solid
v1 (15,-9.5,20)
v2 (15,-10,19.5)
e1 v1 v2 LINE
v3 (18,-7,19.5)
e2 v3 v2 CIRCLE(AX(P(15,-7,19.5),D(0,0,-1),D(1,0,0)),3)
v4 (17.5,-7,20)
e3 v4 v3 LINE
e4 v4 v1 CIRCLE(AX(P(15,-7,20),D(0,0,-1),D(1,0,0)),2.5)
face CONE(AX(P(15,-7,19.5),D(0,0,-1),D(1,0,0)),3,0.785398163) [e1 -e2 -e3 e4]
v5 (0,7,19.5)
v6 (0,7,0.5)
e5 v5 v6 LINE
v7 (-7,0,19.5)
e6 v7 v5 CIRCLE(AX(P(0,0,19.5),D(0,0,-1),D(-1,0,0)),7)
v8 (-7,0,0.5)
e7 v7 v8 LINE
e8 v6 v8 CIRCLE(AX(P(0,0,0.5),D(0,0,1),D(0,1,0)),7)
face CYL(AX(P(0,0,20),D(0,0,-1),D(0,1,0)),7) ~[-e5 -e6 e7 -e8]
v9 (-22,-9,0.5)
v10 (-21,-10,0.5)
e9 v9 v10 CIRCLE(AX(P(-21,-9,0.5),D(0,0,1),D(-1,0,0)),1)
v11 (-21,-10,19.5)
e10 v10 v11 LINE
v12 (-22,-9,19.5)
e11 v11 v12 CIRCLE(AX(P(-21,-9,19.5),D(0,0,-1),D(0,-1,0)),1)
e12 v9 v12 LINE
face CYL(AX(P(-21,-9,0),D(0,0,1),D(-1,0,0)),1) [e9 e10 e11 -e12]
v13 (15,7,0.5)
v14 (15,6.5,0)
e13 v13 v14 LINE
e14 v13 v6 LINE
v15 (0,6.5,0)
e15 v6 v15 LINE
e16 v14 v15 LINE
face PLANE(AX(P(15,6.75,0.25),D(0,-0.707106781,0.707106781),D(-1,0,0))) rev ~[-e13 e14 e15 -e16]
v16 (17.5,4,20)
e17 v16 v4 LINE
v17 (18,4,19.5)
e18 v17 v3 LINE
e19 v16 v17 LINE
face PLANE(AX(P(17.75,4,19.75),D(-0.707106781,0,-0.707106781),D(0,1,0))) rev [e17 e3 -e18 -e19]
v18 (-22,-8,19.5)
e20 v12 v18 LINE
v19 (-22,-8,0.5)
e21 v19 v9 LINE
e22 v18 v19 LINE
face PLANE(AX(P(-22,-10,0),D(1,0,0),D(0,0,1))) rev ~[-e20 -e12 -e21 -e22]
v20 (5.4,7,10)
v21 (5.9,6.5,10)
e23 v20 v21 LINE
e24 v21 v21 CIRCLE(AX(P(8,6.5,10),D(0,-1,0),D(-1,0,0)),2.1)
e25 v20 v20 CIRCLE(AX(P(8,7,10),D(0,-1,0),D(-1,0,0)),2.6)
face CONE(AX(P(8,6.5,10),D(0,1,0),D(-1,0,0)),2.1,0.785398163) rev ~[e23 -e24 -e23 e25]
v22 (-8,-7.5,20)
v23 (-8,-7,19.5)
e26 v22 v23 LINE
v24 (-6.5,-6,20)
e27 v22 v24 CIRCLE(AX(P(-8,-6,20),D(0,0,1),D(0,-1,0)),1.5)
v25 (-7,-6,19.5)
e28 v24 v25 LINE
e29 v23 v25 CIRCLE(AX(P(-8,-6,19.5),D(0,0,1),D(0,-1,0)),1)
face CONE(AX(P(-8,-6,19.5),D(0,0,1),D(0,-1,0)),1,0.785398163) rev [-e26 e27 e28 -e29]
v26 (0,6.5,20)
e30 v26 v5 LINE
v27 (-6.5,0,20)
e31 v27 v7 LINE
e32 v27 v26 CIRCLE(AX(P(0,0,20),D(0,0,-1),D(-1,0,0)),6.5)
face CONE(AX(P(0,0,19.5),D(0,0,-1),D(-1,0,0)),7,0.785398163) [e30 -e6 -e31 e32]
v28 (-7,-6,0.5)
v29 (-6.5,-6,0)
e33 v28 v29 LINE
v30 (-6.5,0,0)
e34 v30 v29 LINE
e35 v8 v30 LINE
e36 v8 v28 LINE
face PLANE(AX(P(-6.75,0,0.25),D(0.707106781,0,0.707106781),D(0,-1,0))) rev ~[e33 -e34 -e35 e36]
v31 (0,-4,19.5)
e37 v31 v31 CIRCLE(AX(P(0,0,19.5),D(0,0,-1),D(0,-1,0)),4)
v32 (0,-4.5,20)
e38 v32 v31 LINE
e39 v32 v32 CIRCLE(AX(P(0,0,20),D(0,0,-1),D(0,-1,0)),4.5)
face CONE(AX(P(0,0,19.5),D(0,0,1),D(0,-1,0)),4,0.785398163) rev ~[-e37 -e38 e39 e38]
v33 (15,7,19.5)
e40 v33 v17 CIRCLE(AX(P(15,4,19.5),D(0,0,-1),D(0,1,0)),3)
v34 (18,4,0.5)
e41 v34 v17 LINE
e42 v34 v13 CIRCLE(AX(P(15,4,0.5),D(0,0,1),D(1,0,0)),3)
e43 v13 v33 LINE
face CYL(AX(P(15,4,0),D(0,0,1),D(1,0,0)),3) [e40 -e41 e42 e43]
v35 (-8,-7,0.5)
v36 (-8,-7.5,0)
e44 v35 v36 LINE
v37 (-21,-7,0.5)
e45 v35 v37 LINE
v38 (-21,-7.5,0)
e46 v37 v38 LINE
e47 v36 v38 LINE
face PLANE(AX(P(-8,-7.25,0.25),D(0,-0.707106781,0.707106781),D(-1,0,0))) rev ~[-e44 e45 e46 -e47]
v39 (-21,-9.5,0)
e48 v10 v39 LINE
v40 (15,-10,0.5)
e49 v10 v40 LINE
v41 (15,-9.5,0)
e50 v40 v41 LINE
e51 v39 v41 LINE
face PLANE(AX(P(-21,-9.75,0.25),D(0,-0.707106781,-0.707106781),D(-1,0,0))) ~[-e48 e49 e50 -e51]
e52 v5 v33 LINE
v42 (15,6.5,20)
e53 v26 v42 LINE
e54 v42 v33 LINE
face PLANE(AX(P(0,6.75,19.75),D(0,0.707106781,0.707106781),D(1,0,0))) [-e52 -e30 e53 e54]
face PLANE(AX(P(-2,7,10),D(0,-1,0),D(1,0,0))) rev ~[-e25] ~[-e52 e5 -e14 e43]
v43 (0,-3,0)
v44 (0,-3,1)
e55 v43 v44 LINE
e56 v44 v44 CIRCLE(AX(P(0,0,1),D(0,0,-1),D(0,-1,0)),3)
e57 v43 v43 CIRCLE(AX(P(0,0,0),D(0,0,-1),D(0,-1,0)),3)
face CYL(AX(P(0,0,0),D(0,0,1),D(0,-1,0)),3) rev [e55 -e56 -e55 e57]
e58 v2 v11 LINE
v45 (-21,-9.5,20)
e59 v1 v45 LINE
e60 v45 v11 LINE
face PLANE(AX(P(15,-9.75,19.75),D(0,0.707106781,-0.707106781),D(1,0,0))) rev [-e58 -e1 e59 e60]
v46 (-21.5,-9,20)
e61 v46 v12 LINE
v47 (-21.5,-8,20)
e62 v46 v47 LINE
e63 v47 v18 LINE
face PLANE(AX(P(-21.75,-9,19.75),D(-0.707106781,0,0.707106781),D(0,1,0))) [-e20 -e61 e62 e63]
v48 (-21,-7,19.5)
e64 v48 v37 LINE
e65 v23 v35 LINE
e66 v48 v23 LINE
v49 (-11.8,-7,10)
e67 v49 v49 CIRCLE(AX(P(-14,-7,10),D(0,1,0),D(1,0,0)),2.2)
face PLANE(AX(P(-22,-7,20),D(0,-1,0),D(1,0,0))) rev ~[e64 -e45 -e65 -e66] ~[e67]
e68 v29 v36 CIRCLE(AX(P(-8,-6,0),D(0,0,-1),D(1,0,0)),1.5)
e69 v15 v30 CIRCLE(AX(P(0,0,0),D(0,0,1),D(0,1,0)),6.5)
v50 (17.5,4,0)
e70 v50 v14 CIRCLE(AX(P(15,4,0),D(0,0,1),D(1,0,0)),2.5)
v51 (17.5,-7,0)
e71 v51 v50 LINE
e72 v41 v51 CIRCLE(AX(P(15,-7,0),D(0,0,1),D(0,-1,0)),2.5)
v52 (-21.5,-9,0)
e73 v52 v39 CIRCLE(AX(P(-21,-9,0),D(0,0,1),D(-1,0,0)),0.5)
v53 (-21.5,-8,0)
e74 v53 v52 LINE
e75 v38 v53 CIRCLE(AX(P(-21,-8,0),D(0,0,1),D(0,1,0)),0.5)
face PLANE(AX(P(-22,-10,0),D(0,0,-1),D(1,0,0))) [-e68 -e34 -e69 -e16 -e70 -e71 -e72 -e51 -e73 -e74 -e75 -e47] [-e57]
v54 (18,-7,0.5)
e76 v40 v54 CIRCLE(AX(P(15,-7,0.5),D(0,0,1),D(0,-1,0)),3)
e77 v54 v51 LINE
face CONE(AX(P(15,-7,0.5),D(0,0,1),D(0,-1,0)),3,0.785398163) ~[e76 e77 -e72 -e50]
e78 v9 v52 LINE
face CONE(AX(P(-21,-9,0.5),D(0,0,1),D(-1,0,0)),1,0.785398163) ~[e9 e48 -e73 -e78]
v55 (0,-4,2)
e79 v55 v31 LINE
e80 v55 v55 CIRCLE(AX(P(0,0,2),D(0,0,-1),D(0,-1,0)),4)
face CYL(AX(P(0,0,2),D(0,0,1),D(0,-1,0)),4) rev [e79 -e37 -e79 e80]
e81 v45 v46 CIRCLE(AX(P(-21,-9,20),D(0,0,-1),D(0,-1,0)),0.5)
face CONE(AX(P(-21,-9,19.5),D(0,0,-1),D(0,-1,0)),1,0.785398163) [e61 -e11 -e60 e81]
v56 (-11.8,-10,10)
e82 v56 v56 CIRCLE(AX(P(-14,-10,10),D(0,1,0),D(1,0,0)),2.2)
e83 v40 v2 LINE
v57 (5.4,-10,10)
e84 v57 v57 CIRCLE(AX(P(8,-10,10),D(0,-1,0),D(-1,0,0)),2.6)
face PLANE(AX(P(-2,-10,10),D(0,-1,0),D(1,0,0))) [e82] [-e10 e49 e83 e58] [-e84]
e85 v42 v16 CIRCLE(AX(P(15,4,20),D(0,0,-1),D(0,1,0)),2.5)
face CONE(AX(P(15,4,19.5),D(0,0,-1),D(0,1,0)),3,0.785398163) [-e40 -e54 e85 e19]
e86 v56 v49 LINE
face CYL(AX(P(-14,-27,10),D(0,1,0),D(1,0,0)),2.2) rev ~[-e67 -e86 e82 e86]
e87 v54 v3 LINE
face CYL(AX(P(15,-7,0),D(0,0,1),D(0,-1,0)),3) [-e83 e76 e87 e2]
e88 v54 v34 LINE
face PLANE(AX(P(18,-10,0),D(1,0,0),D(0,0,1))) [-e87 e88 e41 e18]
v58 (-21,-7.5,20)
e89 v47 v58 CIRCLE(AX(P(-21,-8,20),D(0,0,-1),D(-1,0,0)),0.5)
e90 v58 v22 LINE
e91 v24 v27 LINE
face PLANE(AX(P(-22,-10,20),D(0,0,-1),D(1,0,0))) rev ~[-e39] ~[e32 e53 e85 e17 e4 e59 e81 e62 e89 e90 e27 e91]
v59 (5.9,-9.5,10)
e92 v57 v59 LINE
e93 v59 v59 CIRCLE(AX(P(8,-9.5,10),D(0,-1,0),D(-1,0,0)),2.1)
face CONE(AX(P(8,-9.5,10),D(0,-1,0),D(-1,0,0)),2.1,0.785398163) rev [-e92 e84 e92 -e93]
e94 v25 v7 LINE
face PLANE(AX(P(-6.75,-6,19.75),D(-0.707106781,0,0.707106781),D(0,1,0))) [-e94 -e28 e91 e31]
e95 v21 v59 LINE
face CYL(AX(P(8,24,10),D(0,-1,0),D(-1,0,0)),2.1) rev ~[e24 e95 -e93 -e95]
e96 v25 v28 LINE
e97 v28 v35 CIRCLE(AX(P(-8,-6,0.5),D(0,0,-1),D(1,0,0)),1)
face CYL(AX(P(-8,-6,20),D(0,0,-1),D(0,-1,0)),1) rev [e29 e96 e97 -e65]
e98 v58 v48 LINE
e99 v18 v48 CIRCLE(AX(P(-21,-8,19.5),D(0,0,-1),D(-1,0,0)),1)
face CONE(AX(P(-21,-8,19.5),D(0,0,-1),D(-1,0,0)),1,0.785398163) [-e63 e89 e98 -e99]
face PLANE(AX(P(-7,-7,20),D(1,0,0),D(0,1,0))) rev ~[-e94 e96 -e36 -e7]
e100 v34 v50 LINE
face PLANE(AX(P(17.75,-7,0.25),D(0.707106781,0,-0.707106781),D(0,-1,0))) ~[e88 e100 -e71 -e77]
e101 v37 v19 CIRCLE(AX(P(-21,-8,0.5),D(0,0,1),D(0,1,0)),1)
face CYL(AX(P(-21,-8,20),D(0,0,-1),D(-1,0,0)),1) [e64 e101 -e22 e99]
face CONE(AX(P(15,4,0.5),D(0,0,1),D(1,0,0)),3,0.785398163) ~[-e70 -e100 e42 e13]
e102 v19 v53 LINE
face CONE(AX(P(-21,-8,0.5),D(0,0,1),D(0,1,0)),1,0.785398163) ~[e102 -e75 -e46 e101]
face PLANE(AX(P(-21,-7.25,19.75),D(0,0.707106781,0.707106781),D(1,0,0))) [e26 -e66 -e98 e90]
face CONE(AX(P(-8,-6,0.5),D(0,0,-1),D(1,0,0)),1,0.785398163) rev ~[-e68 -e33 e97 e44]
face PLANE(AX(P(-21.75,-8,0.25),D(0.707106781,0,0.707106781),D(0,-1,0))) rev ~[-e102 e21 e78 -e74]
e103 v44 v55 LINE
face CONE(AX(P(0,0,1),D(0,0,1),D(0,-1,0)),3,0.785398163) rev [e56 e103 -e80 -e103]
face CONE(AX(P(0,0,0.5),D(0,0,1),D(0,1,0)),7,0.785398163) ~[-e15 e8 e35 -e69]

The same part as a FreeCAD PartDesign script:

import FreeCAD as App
import Part
import Sketcher
from FreeCAD import Vector
Q = App.Units.Quantity


def edges_at(feature, points):
    """Names of the edges that pass closest to the given points."""
    edges = feature.Shape.Edges
    near = lambda p: min(range(len(edges)), key=lambda i: edges[i].distToShape(Part.Vertex(*p))[0])
    return sorted({f"Edge{near(p) + 1}" for p in points})

doc = App.newDocument("Part")
body = doc.addObject("PartDesign::Body", "Body")

# Sketch on XZ plane
sketch1 = doc.addObject("Sketcher::SketchObject", "Sketch")
body.addObject(sketch1)
sketch1.AttachmentSupport = (doc.XZ_Plane, [""])
sketch1.MapMode = "FlatFace"
sketch1.AttachmentOffset = App.Placement(Vector(0, 0, 10), App.Rotation())
sketch1.addGeometry(Part.LineSegment(Vector(-22, 20, 0), Vector(-22, 0, 0)), False)
sketch1.addGeometry(Part.LineSegment(Vector(-22, 0, 0), Vector(18, 0, 0)), False)
sketch1.addGeometry(Part.LineSegment(Vector(18, 0, 0), Vector(18, 20, 0)), False)
sketch1.addGeometry(Part.LineSegment(Vector(18, 20, 0), Vector(-22, 20, 0)), False)
sketch1.addConstraint(Sketcher.Constraint("Coincident", 0, 2, 1, 1))
sketch1.addConstraint(Sketcher.Constraint("Coincident", 1, 2, 2, 1))
sketch1.addConstraint(Sketcher.Constraint("Coincident", 2, 2, 3, 1))
sketch1.addConstraint(Sketcher.Constraint("Coincident", 3, 2, 0, 1))
sketch1.addConstraint(Sketcher.Constraint("Vertical", 0))
sketch1.addConstraint(Sketcher.Constraint("Horizontal", 1))
sketch1.addConstraint(Sketcher.Constraint("Vertical", 2))
sketch1.addConstraint(Sketcher.Constraint("Horizontal", 3))
sketch1.addConstraint(Sketcher.Constraint("PointOnObject", 0, 2, -1))
sketch1.addConstraint(Sketcher.Constraint("DistanceX", 1, 1, 1, 2, Q("40 mm")))
sketch1.addConstraint(Sketcher.Constraint("DistanceY", 0, 2, 0, 1, Q("20 mm")))
sketch1.addConstraint(Sketcher.Constraint("DistanceX", 0, 2, -1, 1, Q("22 mm")))
pad1 = doc.addObject("PartDesign::Pad", "Pad")
body.addObject(pad1)
pad1.Profile = sketch1
pad1.Length = 17
pad1.Reversed = True

# Sketch on XY plane
sketch2 = doc.addObject("Sketcher::SketchObject", "Sketch001")
body.addObject(sketch2)
sketch2.AttachmentSupport = (doc.XY_Plane, [""])
sketch2.MapMode = "FlatFace"
sketch2.AttachmentOffset = App.Placement(Vector(0, 0, 20), App.Rotation())
sketch2.addGeometry(Part.LineSegment(Vector(-22, 7, 0), Vector(-22, -7, 0)), False)
sketch2.addGeometry(Part.LineSegment(Vector(-22, -7, 0), Vector(-7, -7, 0)), False)
sketch2.addGeometry(Part.LineSegment(Vector(-7, -7, 0), Vector(-7, 7, 0)), False)
sketch2.addGeometry(Part.LineSegment(Vector(-7, 7, 0), Vector(-22, 7, 0)), False)
sketch2.addConstraint(Sketcher.Constraint("Coincident", 0, 2, 1, 1))
sketch2.addConstraint(Sketcher.Constraint("Coincident", 1, 2, 2, 1))
sketch2.addConstraint(Sketcher.Constraint("Coincident", 2, 2, 3, 1))
sketch2.addConstraint(Sketcher.Constraint("Coincident", 3, 2, 0, 1))
sketch2.addConstraint(Sketcher.Constraint("Vertical", 0))
sketch2.addConstraint(Sketcher.Constraint("Horizontal", 1))
sketch2.addConstraint(Sketcher.Constraint("Vertical", 2))
sketch2.addConstraint(Sketcher.Constraint("Horizontal", 3))
sketch2.addConstraint(Sketcher.Constraint("DistanceX", 1, 1, 1, 2, Q("15 mm")))
sketch2.addConstraint(Sketcher.Constraint("DistanceY", 0, 2, 0, 1, Q("14 mm")))
sketch2.addConstraint(Sketcher.Constraint("DistanceX", 0, 2, -1, 1, Q("22 mm")))
sketch2.addConstraint(Sketcher.Constraint("DistanceY", 0, 2, -1, 1, Q("7 mm")))
pocket1 = doc.addObject("PartDesign::Pocket", "Pocket")
body.addObject(pocket1)
pocket1.Profile = sketch2
pocket1.Type = "ThroughAll"

# Sketch on XZ plane
sketch3 = doc.addObject("Sketcher::SketchObject", "Sketch002")
body.addObject(sketch3)
sketch3.AttachmentSupport = (doc.XZ_Plane, [""])
sketch3.MapMode = "FlatFace"
sketch3.AttachmentOffset = App.Placement(Vector(0, 0, 10), App.Rotation())
sketch3.addGeometry(Part.Circle(Vector(-14, 10, 0), Vector(0, 0, 1), 2.2), False)
sketch3.addConstraint(Sketcher.Constraint("Diameter", 0, Q("4.4 mm")))
sketch3.addConstraint(Sketcher.Constraint("DistanceX", 0, 3, -1, 1, Q("14 mm")))
sketch3.addConstraint(Sketcher.Constraint("DistanceY", -1, 1, 0, 3, Q("10 mm")))
doc.recompute()
hole = doc.addObject("PartDesign::Hole", "Hole")
body.addObject(hole)
hole.Profile = sketch3
hole.ThreadType = "None"
hole.Diameter = 4.4
hole.DepthType = "Dimension"
hole.Depth = 17
hole.DrillPoint = "Flat"

# Sketch on XZ plane
sketch4 = doc.addObject("Sketcher::SketchObject", "Sketch003")
body.addObject(sketch4)
sketch4.AttachmentSupport = (doc.XZ_Plane, [""])
sketch4.MapMode = "FlatFace"
sketch4.AttachmentOffset = App.Placement(Vector(0, 0, -7), App.Rotation())
sketch4.addGeometry(Part.Circle(Vector(8, 10, 0), Vector(0, 0, 1), 2.1), False)
sketch4.addConstraint(Sketcher.Constraint("Diameter", 0, Q("4.2 mm")))
sketch4.addConstraint(Sketcher.Constraint("DistanceX", -1, 1, 0, 3, Q("8 mm")))
sketch4.addConstraint(Sketcher.Constraint("DistanceY", -1, 1, 0, 3, Q("10 mm")))
doc.recompute()
hole2 = doc.addObject("PartDesign::Hole", "Hole001")
body.addObject(hole2)
hole2.Profile = sketch4
hole2.ThreadType = "None"
hole2.Diameter = 4.2
hole2.DepthType = "Dimension"
hole2.Depth = 17
hole2.DrillPoint = "Flat"
hole2.Reversed = True

# Sketch on YZ plane
sketch5 = doc.addObject("Sketcher::SketchObject", "Sketch004")
body.addObject(sketch5)
sketch5.AttachmentSupport = (doc.YZ_Plane, [""])
sketch5.MapMode = "FlatFace"
sketch5.addGeometry(Part.LineSegment(Vector(0, 0, 0), Vector(0, 20, 0)), False)
sketch5.addGeometry(Part.LineSegment(Vector(0, 20, 0), Vector(-4, 20, 0)), False)
sketch5.addGeometry(Part.LineSegment(Vector(-4, 20, 0), Vector(-4, 2, 0)), False)
sketch5.addGeometry(Part.LineSegment(Vector(-4, 2, 0), Vector(-3, 1, 0)), False)
sketch5.addGeometry(Part.LineSegment(Vector(-3, 1, 0), Vector(-3, 0, 0)), False)
sketch5.addGeometry(Part.LineSegment(Vector(-3, 0, 0), Vector(0, 0, 0)), False)
sketch5.addConstraint(Sketcher.Constraint("Coincident", 0, 2, 1, 1))
sketch5.addConstraint(Sketcher.Constraint("Coincident", 1, 2, 2, 1))
sketch5.addConstraint(Sketcher.Constraint("Coincident", 2, 2, 3, 1))
sketch5.addConstraint(Sketcher.Constraint("Coincident", 3, 2, 4, 1))
sketch5.addConstraint(Sketcher.Constraint("Coincident", 4, 2, 5, 1))
sketch5.addConstraint(Sketcher.Constraint("Coincident", 5, 2, 0, 1))
sketch5.addConstraint(Sketcher.Constraint("Vertical", 0))
sketch5.addConstraint(Sketcher.Constraint("Horizontal", 1))
sketch5.addConstraint(Sketcher.Constraint("Vertical", 2))
sketch5.addConstraint(Sketcher.Constraint("Vertical", 4))
sketch5.addConstraint(Sketcher.Constraint("Horizontal", 5))
sketch5.addConstraint(Sketcher.Constraint("Coincident", 5, 2, -1, 1))
sketch5.addConstraint(Sketcher.Constraint("DistanceX", 1, 2, 1, 1, Q("4 mm")))
sketch5.addConstraint(Sketcher.Constraint("DistanceX", 5, 1, 5, 2, Q("3 mm")))
sketch5.addConstraint(Sketcher.Constraint("DistanceY", 0, 1, 0, 2, Q("20 mm")))
sketch5.addConstraint(Sketcher.Constraint("DistanceY", 2, 2, 2, 1, Q("18 mm")))
sketch5.addConstraint(Sketcher.Constraint("DistanceY", 4, 2, 4, 1, Q("1 mm")))
groove = doc.addObject("PartDesign::Groove", "Groove")
body.addObject(groove)
groove.Profile = sketch5
groove.ReferenceAxis = (sketch5, ["V_Axis"])
groove.Angle = 360
doc.recompute()

fillet = doc.addObject("PartDesign::Fillet", "Fillet")
body.addObject(fillet)
fillet.Base = (groove, edges_at(groove, [(-7, -7, 10), (-22, -7, 10), (-22, -10, 10)]))
fillet.Radius = 1
doc.recompute()

fillet2 = doc.addObject("PartDesign::Fillet", "Fillet001")
body.addObject(fillet2)
fillet2.Base = (fillet, edges_at(fillet, [(18, 7, 10), (18, -10, 10)]))
fillet2.Radius = 3
doc.recompute()

fillet3 = doc.addObject("PartDesign::Fillet", "Fillet002")
body.addObject(fillet3)
fillet3.Base = (fillet2, edges_at(fillet2, [(-7, 7, 10)]))
fillet3.Radius = 7
doc.recompute()

chamfer = doc.addObject("PartDesign::Chamfer", "Chamfer")
body.addObject(chamfer)
chamfer.Base = (fillet3, edges_at(fillet3, [
    (10.1, 7, 10),
    (10.1, -10, 10),
    (0, 4, 20),
    (-7, -3, 20),
    (-7, -3, 0),
    (-14.5, -7, 20),
    (-14.5, -7, 0),
    (-22, -8.5, 20),
    (-21.707, -9.707, 20),
    (-21.707, -7.293, 20),
    (-22, -8.5, 0),
    (-3, -10, 0),
    (-21.707, -9.707, 0),
    (-21.707, -7.293, 0),
    (-7.293, -6.707, 20),
    (-7.293, -6.707, 0),
    (-3, -10, 20),
    (18, -1.5, 20),
    (7.5, 7, 20),
    (17.121, 6.121, 20),
    (17.121, -9.121, 20),
    (18, -1.5, 0),
    (17.121, 6.121, 0),
    (17.121, -9.121, 0),
    (7.5, 7, 0),
    (-4.95, 4.95, 20),
    (-4.95, 4.95, 0),
]))
chamfer.Size = 0.5

doc.recompute()
